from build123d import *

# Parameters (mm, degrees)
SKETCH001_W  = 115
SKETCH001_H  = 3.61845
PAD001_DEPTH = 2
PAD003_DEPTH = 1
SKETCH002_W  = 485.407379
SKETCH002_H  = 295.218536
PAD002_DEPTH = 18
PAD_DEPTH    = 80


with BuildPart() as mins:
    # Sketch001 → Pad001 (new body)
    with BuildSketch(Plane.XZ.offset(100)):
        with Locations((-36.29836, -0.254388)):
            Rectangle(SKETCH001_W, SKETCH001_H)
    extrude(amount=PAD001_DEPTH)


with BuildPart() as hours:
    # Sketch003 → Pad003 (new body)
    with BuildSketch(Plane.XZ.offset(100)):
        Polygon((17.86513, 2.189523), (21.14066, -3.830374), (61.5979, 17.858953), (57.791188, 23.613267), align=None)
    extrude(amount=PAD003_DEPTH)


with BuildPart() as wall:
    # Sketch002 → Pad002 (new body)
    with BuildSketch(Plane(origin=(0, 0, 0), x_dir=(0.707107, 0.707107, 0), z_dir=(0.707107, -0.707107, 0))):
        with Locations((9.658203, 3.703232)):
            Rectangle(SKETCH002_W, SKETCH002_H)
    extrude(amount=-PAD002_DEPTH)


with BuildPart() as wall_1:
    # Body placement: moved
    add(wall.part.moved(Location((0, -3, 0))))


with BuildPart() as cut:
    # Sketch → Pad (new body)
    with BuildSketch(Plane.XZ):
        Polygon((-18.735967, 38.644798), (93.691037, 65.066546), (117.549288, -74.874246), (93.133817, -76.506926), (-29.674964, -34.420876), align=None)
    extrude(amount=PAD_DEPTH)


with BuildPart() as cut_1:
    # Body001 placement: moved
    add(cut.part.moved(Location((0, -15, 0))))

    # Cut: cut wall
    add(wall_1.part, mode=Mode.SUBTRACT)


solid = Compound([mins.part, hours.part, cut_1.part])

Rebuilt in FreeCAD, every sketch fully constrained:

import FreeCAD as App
import Part
import Sketcher
from FreeCAD import Vector
Q = App.Units.Quantity


def add_polygon(sketch, points):
    """Adds a closed chain of lines whose ends are joined by coincident constraints."""
    first, n = sketch.GeometryCount, len(points)
    for a, b in zip(points, points[1:] + points[:1]):
        sketch.addGeometry(Part.LineSegment(App.Vector(*a, 0), App.Vector(*b, 0)), False)
    for i in range(n):
        sketch.addConstraint(Sketcher.Constraint("Coincident", first + i, 2, first + (i + 1) % n, 1))

doc = App.newDocument("Part")
body = doc.addObject("PartDesign::Body", "Body")

sketch1 = body.newObject("Sketcher::SketchObject", "Sketch")
sketch1.AttachmentSupport = (doc.getObject("XZ_Plane"), [""])
sketch1.MapMode = "FlatFace"
sketch1.AttachmentOffset = App.Placement(Vector(0, 0, 100), App.Rotation())
add_polygon(sketch1, [(-93.8, 1.6), (-93.8, -2.1), (21.2, -2.1), (21.2, 1.6)])
sketch1.addConstraint(Sketcher.Constraint("Vertical", 0))
sketch1.addConstraint(Sketcher.Constraint("Horizontal", 1))
sketch1.addConstraint(Sketcher.Constraint("Vertical", 2))
sketch1.addConstraint(Sketcher.Constraint("Horizontal", 3))
sketch1.addConstraint(Sketcher.Constraint("DistanceX", 1, 1, 1, 2, Q("115 mm")))
sketch1.addConstraint(Sketcher.Constraint("DistanceY", 0, 2, 0, 1, Q("3.61845 mm")))
sketch1.addConstraint(Sketcher.Constraint("DistanceX", 0, 2, -1, 1, Q("93.79836 mm")))
sketch1.addConstraint(Sketcher.Constraint("DistanceY", 0, 2, -1, 1, Q("2.063613 mm")))
pad1 = body.newObject("PartDesign::Pad", "Pad")
pad1.Profile = sketch1
pad1.Length = 2
body2 = doc.addObject("PartDesign::Body", "Body001")

sketch2 = body2.newObject("Sketcher::SketchObject", "Sketch001")
sketch2.AttachmentSupport = (doc.getObject("XZ_Plane001"), [""])
sketch2.MapMode = "FlatFace"
sketch2.AttachmentOffset = App.Placement(Vector(0, 0, 100), App.Rotation())
add_polygon(sketch2, [(18, 2), (21, -4), (62, 18), (58, 24)])
sketch2.addConstraint(Sketcher.Constraint("DistanceX", -1, 1, 1, 2, Q("61.5979 mm")))
sketch2.addConstraint(Sketcher.Constraint("Distance", 0, Q("6.853339 mm")))
sketch2.addConstraint(Sketcher.Constraint("Distance", 3, Q("45.310781 mm")))
sketch2.addConstraint(Sketcher.Constraint("DistanceX", -1, 1, 0, 2, Q("21.14066 mm")))
sketch2.addConstraint(Sketcher.Constraint("DistanceX", -1, 1, 3, 2, Q("17.86513 mm")))
sketch2.addConstraint(Sketcher.Constraint("DistanceY", 0, 2, 2, 2, Q("27.443641 mm")))
sketch2.addConstraint(Sketcher.Constraint("DistanceY", 3, 2, 1, 2, Q("15.66943 mm")))
sketch2.addConstraint(Sketcher.Constraint("DistanceY", 0, 2, -1, 1, Q("3.830374 mm")))
pad2 = body2.newObject("PartDesign::Pad", "Pad001")
pad2.Profile = sketch2
pad2.Length = 1
body3 = doc.addObject("PartDesign::Body", "Body002")

sketch3 = body3.newObject("Sketcher::SketchObject", "Sketch002")
sketch3.Placement = App.Placement(Vector(0, 0, 0), App.Rotation(Vector(0.707106781, 0.707106781, 0), Vector(0, 0, 0.999999999), Vector(0.707106781, -0.707106781, 0), "ZXY"))
add_polygon(sketch3, [(-233, 151), (-233, -144), (252, -144), (252, 151)])
sketch3.addConstraint(Sketcher.Constraint("Vertical", 0))
sketch3.addConstraint(Sketcher.Constraint("Horizontal", 1))
sketch3.addConstraint(Sketcher.Constraint("Vertical", 2))
sketch3.addConstraint(Sketcher.Constraint("Horizontal", 3))
sketch3.addConstraint(Sketcher.Constraint("DistanceX", 1, 1, 1, 2, Q("485.407379 mm")))
sketch3.addConstraint(Sketcher.Constraint("DistanceY", -1, 1, 2, 2, Q("151.3125 mm")))
sketch3.addConstraint(Sketcher.Constraint("DistanceY", 0, 2, 0, 1, Q("295.218536 mm")))
sketch3.addConstraint(Sketcher.Constraint("DistanceX", 0, 2, -1, 1, Q("233.045486 mm")))
pad3 = body3.newObject("PartDesign::Pad", "Pad002")
pad3.Profile = sketch3
pad3.Length = 18
pad3.Reversed = True
body4 = doc.addObject("PartDesign::Body", "Body003")
doc.recompute()

body3.Placement = App.Placement(Vector(0, -3, 0), App.Rotation(Vector(0, 0, 1), 0))
boolean = body4.newObject("PartDesign::Boolean", "Boolean")
boolean.Type = "Fuse"
boolean.addObjects([body3])
body5 = doc.addObject("PartDesign::Body", "Body004")

sketch4 = body5.newObject("Sketcher::SketchObject", "Sketch003")
sketch4.AttachmentSupport = (doc.getObject("XZ_Plane004"), [""])
sketch4.MapMode = "FlatFace"
add_polygon(sketch4, [(94, 65), (-19, 39), (-30, -34), (93, -77), (118, -75)])
sketch4.addConstraint(Sketcher.Constraint("Distance", 0, Q("115.49 mm")))
sketch4.addConstraint(Sketcher.Constraint("Distance", 1, Q("73.88 mm")))
sketch4.addConstraint(Sketcher.Constraint("Distance", 2, Q("129.82 mm")))
sketch4.addConstraint(Sketcher.Constraint("Distance", 3, Q("24.469999 mm")))
sketch4.addConstraint(Sketcher.Constraint("Distance", 4, Q("141.959999 mm")))
sketch4.addConstraint(Sketcher.Constraint("DistanceX", 1, 2, 4, 2, Q("123.366001 mm")))
sketch4.addConstraint(Sketcher.Constraint("DistanceY", -1, 1, 0, 2, Q("38.644798 mm")))
sketch4.addConstraint(Sketcher.Constraint("DistanceX", -1, 1, 3, 2, Q("117.549288 mm")))
sketch4.addConstraint(Sketcher.Constraint("DistanceX", 1, 2, 2, 2, Q("122.808781 mm")))
sketch4.addConstraint(Sketcher.Constraint("DistanceX", 2, 2, 3, 2, Q("24.415471 mm")))
pad4 = body5.newObject("PartDesign::Pad", "Pad003")
pad4.Profile = sketch4
pad4.Length = 80
body6 = doc.addObject("PartDesign::Body", "Body005")
doc.recompute()

body5.Placement = App.Placement(Vector(0, -15, 0), App.Rotation(Vector(0, 0, 1), 0))
boolean2 = body6.newObject("PartDesign::Boolean", "Boolean001")
boolean2.Type = "Fuse"
boolean2.addObjects([body5])
doc.recompute()

boolean3 = body6.newObject("PartDesign::Boolean", "Boolean002")
boolean3.Type = "Cut"
boolean3.addObjects([body4])

doc.recompute()
